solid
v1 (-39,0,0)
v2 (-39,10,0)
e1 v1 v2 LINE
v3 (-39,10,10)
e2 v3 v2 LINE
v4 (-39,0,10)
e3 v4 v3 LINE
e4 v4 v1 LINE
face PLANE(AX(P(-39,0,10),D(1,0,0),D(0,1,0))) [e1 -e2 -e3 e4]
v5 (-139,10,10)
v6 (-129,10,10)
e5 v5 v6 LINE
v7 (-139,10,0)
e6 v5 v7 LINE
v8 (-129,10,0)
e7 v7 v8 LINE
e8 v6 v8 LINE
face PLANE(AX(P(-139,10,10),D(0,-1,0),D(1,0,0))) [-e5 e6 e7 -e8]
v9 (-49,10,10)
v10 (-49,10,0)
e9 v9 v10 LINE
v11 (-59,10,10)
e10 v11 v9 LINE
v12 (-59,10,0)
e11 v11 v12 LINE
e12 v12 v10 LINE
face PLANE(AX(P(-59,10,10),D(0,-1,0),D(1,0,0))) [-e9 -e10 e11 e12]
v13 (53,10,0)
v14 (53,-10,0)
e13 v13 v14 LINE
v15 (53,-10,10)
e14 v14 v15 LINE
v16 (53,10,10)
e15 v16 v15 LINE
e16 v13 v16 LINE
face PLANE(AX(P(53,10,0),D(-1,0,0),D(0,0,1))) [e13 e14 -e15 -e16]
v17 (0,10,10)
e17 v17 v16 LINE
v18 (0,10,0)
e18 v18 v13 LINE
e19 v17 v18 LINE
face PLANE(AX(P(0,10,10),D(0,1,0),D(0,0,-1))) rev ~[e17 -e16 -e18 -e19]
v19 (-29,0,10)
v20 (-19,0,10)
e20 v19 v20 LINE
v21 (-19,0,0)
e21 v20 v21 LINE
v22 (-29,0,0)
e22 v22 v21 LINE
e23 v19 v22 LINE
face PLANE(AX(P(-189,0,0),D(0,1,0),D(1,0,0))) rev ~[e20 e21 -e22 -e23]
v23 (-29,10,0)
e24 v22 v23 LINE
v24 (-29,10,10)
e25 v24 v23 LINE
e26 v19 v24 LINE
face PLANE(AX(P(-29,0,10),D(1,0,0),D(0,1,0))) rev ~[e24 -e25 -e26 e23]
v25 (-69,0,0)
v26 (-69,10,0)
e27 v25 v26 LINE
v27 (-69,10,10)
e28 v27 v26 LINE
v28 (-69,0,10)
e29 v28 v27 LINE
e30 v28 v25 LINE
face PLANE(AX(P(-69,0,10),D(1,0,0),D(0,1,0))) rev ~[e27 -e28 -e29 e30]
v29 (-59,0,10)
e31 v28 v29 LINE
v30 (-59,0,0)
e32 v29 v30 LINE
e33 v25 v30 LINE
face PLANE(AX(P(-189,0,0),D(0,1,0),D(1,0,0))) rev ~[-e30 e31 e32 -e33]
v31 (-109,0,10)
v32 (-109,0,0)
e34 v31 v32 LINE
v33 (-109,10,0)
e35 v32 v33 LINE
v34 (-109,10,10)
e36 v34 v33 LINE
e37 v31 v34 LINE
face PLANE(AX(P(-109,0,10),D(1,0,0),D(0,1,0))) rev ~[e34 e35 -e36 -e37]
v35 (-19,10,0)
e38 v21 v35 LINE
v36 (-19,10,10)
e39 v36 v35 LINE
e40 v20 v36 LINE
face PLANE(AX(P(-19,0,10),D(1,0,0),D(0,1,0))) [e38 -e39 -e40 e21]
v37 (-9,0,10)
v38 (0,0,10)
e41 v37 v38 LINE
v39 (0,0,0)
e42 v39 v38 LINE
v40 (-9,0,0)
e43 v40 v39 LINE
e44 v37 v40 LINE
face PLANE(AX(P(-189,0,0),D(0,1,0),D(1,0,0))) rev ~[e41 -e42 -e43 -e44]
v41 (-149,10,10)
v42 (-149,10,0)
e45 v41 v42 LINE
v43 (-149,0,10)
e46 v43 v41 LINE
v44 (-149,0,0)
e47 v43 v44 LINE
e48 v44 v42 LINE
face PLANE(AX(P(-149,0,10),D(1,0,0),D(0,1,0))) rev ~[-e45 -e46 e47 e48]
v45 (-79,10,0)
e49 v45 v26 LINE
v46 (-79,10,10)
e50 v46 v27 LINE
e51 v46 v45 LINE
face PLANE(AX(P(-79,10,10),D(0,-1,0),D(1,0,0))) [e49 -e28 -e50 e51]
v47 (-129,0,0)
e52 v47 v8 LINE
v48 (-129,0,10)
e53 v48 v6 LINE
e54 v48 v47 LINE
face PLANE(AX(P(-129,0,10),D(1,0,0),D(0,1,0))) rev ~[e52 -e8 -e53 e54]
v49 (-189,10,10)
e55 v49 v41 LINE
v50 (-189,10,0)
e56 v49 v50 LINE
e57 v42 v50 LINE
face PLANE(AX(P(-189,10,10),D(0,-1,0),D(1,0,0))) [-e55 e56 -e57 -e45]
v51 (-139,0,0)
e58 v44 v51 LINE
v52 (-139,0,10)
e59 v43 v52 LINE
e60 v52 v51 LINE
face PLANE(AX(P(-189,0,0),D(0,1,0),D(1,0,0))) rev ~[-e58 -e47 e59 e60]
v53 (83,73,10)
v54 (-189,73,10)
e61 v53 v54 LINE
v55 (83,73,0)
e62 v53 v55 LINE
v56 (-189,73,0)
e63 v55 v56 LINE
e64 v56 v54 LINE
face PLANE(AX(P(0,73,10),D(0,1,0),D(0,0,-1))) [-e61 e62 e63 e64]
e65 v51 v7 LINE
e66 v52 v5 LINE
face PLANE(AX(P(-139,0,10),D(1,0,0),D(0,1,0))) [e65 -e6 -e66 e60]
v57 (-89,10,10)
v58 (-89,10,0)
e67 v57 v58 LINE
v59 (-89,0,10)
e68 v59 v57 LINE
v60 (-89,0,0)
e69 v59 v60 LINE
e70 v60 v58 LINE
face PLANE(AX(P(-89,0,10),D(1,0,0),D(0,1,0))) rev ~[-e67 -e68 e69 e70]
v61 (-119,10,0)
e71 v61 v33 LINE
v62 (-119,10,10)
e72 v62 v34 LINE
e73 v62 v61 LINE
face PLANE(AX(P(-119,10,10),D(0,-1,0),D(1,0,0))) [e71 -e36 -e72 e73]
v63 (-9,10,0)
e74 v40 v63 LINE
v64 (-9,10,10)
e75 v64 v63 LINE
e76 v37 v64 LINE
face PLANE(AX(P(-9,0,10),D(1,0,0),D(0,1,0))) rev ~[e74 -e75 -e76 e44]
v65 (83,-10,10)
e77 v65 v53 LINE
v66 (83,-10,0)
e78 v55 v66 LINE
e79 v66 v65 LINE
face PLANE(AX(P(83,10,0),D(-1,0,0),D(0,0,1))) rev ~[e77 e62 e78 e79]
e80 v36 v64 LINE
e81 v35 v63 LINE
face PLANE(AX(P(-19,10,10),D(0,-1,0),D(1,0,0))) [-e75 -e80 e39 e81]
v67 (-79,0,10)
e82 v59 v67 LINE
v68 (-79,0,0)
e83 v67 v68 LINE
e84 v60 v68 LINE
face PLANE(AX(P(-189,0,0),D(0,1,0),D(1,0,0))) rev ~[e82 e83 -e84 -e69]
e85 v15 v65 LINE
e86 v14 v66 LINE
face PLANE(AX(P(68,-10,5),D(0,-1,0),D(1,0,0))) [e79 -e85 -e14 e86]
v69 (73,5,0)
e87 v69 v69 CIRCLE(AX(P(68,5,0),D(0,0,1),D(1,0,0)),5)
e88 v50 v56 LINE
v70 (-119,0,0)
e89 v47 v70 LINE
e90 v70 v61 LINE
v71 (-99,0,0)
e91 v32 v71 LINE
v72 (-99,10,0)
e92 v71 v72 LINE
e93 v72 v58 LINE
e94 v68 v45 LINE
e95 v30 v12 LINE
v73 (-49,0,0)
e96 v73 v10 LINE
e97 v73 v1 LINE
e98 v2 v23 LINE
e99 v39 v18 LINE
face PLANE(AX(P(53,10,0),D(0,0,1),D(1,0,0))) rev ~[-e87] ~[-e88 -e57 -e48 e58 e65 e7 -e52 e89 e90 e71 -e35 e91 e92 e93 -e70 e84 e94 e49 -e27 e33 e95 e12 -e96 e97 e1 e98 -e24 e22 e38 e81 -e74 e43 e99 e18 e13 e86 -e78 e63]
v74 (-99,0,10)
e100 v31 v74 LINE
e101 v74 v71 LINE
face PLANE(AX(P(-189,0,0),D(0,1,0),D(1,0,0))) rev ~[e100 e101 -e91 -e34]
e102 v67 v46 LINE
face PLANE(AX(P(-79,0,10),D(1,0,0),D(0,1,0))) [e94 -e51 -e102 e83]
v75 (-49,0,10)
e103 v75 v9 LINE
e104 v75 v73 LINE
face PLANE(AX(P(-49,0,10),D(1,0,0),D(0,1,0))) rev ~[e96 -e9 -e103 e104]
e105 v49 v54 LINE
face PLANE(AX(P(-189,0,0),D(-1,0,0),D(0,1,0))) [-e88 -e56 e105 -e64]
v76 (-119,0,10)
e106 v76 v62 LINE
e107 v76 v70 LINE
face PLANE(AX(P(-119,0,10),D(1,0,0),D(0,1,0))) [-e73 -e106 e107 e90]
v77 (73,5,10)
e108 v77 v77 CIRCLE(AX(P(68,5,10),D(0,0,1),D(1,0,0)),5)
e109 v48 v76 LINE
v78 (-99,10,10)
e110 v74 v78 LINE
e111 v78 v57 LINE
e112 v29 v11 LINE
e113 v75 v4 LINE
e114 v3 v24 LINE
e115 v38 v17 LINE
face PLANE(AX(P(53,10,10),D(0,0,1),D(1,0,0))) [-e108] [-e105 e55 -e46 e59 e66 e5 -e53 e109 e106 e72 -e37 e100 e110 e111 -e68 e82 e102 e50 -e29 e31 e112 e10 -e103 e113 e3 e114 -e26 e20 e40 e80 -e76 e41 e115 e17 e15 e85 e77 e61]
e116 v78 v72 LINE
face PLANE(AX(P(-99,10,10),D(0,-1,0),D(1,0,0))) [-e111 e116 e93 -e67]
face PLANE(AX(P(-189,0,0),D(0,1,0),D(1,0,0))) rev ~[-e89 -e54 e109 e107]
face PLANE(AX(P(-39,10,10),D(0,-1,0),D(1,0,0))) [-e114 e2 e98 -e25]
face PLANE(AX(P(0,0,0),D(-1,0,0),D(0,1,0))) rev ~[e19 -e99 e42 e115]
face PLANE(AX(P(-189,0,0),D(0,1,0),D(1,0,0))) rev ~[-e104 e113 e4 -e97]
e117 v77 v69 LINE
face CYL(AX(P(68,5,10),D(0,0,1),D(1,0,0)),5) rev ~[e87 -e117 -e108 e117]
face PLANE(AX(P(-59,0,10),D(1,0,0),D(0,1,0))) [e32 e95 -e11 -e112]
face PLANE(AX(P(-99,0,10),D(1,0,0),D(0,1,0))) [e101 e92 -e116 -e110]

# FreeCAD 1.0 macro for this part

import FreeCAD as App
import Part
import Sketcher

V = App.Vector

doc = App.newDocument("Part")
body = doc.addObject("PartDesign::Body", "Body")

sketch1 = doc.addObject("Sketcher::SketchObject", "Sketch")
body.addObject(sketch1)
sketch1.AttachmentSupport = (doc.XY_Plane, [""])
sketch1.MapMode = "FlatFace"
sketch1.addGeometry(Part.LineSegment(V(-189, 73, 0), V(-189, 0, 0)), False)
sketch1.addGeometry(Part.LineSegment(V(-189, 0, 0), V(0, 0, 0)), False)
sketch1.addGeometry(Part.LineSegment(V(0, 0, 0), V(0, 73, 0)), False)
sketch1.addGeometry(Part.LineSegment(V(0, 73, 0), V(-189, 73, 0)), False)
sketch1.addConstraint(Sketcher.Constraint("Coincident", 0, 2, 1, 1))
sketch1.addConstraint(Sketcher.Constraint("Coincident", 1, 2, 2, 1))
sketch1.addConstraint(Sketcher.Constraint("Coincident", 2, 2, 3, 1))
sketch1.addConstraint(Sketcher.Constraint("Coincident", 3, 2, 0, 1))
sketch1.addConstraint(Sketcher.Constraint("Vertical", 0))
sketch1.addConstraint(Sketcher.Constraint("Horizontal", 1))
sketch1.addConstraint(Sketcher.Constraint("Vertical", 2))
sketch1.addConstraint(Sketcher.Constraint("Horizontal", 3))
sketch1.addConstraint(Sketcher.Constraint("Coincident", 1, 2, -1, 1))
sketch1.addConstraint(Sketcher.Constraint("DistanceX", 1, 1, 1, 2, 189.0))
sketch1.addConstraint(Sketcher.Constraint("DistanceY", 0, 2, 0, 1, 73.0))
pad1 = doc.addObject("PartDesign::Pad", "Pad")
body.addObject(pad1)
pad1.Profile = sketch1
pad1.Length = 10

sketch2 = doc.addObject("Sketcher::SketchObject", "Sketch001")
body.addObject(sketch2)
sketch2.AttachmentSupport = (doc.XY_Plane, [""])
sketch2.MapMode = "FlatFace"
sketch2.AttachmentOffset = App.Placement(V(0, 0, 10), App.Rotation())
sketch2.addGeometry(Part.LineSegment(V(-159, 10, 0), V(-159, 0, 0)), False)
sketch2.addGeometry(Part.LineSegment(V(-159, 0, 0), V(-149, 0, 0)), False)
sketch2.addGeometry(Part.LineSegment(V(-149, 0, 0), V(-149, 10, 0)), False)
sketch2.addGeometry(Part.LineSegment(V(-149, 10, 0), V(-159, 10, 0)), False)
sketch2.addConstraint(Sketcher.Constraint("Coincident", 0, 2, 1, 1))
sketch2.addConstraint(Sketcher.Constraint("Coincident", 1, 2, 2, 1))
sketch2.addConstraint(Sketcher.Constraint("Coincident", 2, 2, 3, 1))
sketch2.addConstraint(Sketcher.Constraint("Coincident", 3, 2, 0, 1))
sketch2.addConstraint(Sketcher.Constraint("Vertical", 0))
sketch2.addConstraint(Sketcher.Constraint("Horizontal", 1))
sketch2.addConstraint(Sketcher.Constraint("Vertical", 2))
sketch2.addConstraint(Sketcher.Constraint("Horizontal", 3))
sketch2.addConstraint(Sketcher.Constraint("PointOnObject", 0, 2, -1))
sketch2.addConstraint(Sketcher.Constraint("Equal", 3, 0))
sketch2.addConstraint(Sketcher.Constraint("DistanceX", 1, 1, 1, 2, 10.0))
sketch2.addConstraint(Sketcher.Constraint("DistanceX", 0, 2, -1, 1, 159.0))
pocket1 = doc.addObject("PartDesign::Pocket", "Pocket")
body.addObject(pocket1)
pocket1.Profile = sketch2
pocket1.Length = 10
doc.recompute()

linearpattern = doc.addObject("PartDesign::LinearPattern", "LinearPattern")
body.addObject(linearpattern)
linearpattern.Originals = [pocket1]
linearpattern.Direction = (doc.X_Axis, [""])
linearpattern.Mode = "offset"
linearpattern.Offset = 20
linearpattern.Occurrences = 8
body.Tip = linearpattern

sketch3 = doc.addObject("Sketcher::SketchObject", "Sketch002")
body.addObject(sketch3)
sketch3.AttachmentSupport = (doc.XY_Plane, [""])
sketch3.MapMode = "FlatFace"
sketch3.AttachmentOffset = App.Placement(V(0, 0, 10), App.Rotation())
sketch3.addGeometry(Part.LineSegment(V(-189, 10, 0), V(-189, 0, 0)), False)
sketch3.addGeometry(Part.LineSegment(V(-189, 0, 0), V(-159, 0, 0)), False)
sketch3.addGeometry(Part.LineSegment(V(-159, 0, 0), V(-159, 10, 0)), False)
sketch3.addGeometry(Part.LineSegment(V(-159, 10, 0), V(-189, 10, 0)), False)
sketch3.addConstraint(Sketcher.Constraint("Coincident", 0, 2, 1, 1))
sketch3.addConstraint(Sketcher.Constraint("Coincident", 1, 2, 2, 1))
sketch3.addConstraint(Sketcher.Constraint("Coincident", 2, 2, 3, 1))
sketch3.addConstraint(Sketcher.Constraint("Coincident", 3, 2, 0, 1))
sketch3.addConstraint(Sketcher.Constraint("Vertical", 0))
sketch3.addConstraint(Sketcher.Constraint("Horizontal", 1))
sketch3.addConstraint(Sketcher.Constraint("Vertical", 2))
sketch3.addConstraint(Sketcher.Constraint("Horizontal", 3))
sketch3.addConstraint(Sketcher.Constraint("PointOnObject", 0, 2, -1))
sketch3.addConstraint(Sketcher.Constraint("DistanceX", 1, 1, 1, 2, 30.0))
sketch3.addConstraint(Sketcher.Constraint("DistanceY", 0, 2, 0, 1, 10.0))
sketch3.addConstraint(Sketcher.Constraint("DistanceX", 0, 2, -1, 1, 189.0))
pocket2 = doc.addObject("PartDesign::Pocket", "Pocket001")
body.addObject(pocket2)
pocket2.Profile = sketch3
pocket2.Length = 10

sketch4 = doc.addObject("Sketcher::SketchObject", "Sketch003")
body.addObject(sketch4)
sketch4.AttachmentSupport = (doc.YZ_Plane, [""])
sketch4.MapMode = "FlatFace"
sketch4.addGeometry(Part.LineSegment(V(73, 10, 0), V(10, 10, 0)), False)
sketch4.addGeometry(Part.LineSegment(V(10, 10, 0), V(10, 0, 0)), False)
sketch4.addGeometry(Part.LineSegment(V(10, 0, 0), V(73, 0, 0)), False)
sketch4.addGeometry(Part.LineSegment(V(73, 0, 0), V(73, 10, 0)), False)
sketch4.addConstraint(Sketcher.Constraint("Coincident", 0, 2, 1, 1))
sketch4.addConstraint(Sketcher.Constraint("Coincident", 1, 2, 2, 1))
sketch4.addConstraint(Sketcher.Constraint("Coincident", 2, 2, 3, 1))
sketch4.addConstraint(Sketcher.Constraint("Coincident", 3, 2, 0, 1))
sketch4.addConstraint(Sketcher.Constraint("Horizontal", 0))
sketch4.addConstraint(Sketcher.Constraint("Vertical", 1))
sketch4.addConstraint(Sketcher.Constraint("Horizontal", 2))
sketch4.addConstraint(Sketcher.Constraint("Vertical", 3))
sketch4.addConstraint(Sketcher.Constraint("PointOnObject", 1, 2, -1))
sketch4.addConstraint(Sketcher.Constraint("DistanceX", 0, 2, 0, 1, 63.0))
sketch4.addConstraint(Sketcher.Constraint("DistanceY", 1, 2, 1, 1, 10.0))
sketch4.addConstraint(Sketcher.Constraint("DistanceX", -1, 1, 0, 2, 10.0))
pad2 = doc.addObject("PartDesign::Pad", "Pad001")
body.addObject(pad2)
pad2.Profile = sketch4
pad2.Length = 83

sketch5 = doc.addObject("Sketcher::SketchObject", "Sketch004")
body.addObject(sketch5)
sketch5.AttachmentSupport = (doc.XZ_Plane, [""])
sketch5.MapMode = "FlatFace"
sketch5.AttachmentOffset = App.Placement(V(0, 0, -10), App.Rotation())
sketch5.addGeometry(Part.LineSegment(V(53, 10, 0), V(53, 0, 0)), False)
sketch5.addGeometry(Part.LineSegment(V(53, 0, 0), V(83, 0, 0)), False)
sketch5.addGeometry(Part.LineSegment(V(83, 0, 0), V(83, 10, 0)), False)
sketch5.addGeometry(Part.LineSegment(V(83, 10, 0), V(53, 10, 0)), False)
sketch5.addConstraint(Sketcher.Constraint("Coincident", 0, 2, 1, 1))
sketch5.addConstraint(Sketcher.Constraint("Coincident", 1, 2, 2, 1))
sketch5.addConstraint(Sketcher.Constraint("Coincident", 2, 2, 3, 1))
sketch5.addConstraint(Sketcher.Constraint("Coincident", 3, 2, 0, 1))
sketch5.addConstraint(Sketcher.Constraint("Vertical", 0))
sketch5.addConstraint(Sketcher.Constraint("Horizontal", 1))
sketch5.addConstraint(Sketcher.Constraint("Vertical", 2))
sketch5.addConstraint(Sketcher.Constraint("Horizontal", 3))
sketch5.addConstraint(Sketcher.Constraint("PointOnObject", 0, 2, -1))
sketch5.addConstraint(Sketcher.Constraint("DistanceX", 1, 1, 1, 2, 30.0))
sketch5.addConstraint(Sketcher.Constraint("DistanceY", 0, 2, 0, 1, 10.0))
sketch5.addConstraint(Sketcher.Constraint("DistanceX", -1, 1, 0, 2, 53.0))
pad3 = doc.addObject("PartDesign::Pad", "Pad002")
body.addObject(pad3)
pad3.Profile = sketch5
pad3.Length = 20

sketch6 = doc.addObject("Sketcher::SketchObject", "Sketch005")
body.addObject(sketch6)
sketch6.AttachmentSupport = (doc.XY_Plane, [""])
sketch6.MapMode = "FlatFace"
sketch6.AttachmentOffset = App.Placement(V(0, 0, 10), App.Rotation())
sketch6.addGeometry(Part.Circle(V(68, 5, 0), V(0, 0, 1), 5), False)
sketch6.addConstraint(Sketcher.Constraint("Diameter", 0, 10.0))
sketch6.addConstraint(Sketcher.Constraint("DistanceX", -1, 1, 0, 3, 68.0))
sketch6.addConstraint(Sketcher.Constraint("DistanceY", -1, 1, 0, 3, 5.0))
pocket3 = doc.addObject("PartDesign::Pocket", "Pocket002")
body.addObject(pocket3)
pocket3.Profile = sketch6
pocket3.Length = 10

doc.recompute()
